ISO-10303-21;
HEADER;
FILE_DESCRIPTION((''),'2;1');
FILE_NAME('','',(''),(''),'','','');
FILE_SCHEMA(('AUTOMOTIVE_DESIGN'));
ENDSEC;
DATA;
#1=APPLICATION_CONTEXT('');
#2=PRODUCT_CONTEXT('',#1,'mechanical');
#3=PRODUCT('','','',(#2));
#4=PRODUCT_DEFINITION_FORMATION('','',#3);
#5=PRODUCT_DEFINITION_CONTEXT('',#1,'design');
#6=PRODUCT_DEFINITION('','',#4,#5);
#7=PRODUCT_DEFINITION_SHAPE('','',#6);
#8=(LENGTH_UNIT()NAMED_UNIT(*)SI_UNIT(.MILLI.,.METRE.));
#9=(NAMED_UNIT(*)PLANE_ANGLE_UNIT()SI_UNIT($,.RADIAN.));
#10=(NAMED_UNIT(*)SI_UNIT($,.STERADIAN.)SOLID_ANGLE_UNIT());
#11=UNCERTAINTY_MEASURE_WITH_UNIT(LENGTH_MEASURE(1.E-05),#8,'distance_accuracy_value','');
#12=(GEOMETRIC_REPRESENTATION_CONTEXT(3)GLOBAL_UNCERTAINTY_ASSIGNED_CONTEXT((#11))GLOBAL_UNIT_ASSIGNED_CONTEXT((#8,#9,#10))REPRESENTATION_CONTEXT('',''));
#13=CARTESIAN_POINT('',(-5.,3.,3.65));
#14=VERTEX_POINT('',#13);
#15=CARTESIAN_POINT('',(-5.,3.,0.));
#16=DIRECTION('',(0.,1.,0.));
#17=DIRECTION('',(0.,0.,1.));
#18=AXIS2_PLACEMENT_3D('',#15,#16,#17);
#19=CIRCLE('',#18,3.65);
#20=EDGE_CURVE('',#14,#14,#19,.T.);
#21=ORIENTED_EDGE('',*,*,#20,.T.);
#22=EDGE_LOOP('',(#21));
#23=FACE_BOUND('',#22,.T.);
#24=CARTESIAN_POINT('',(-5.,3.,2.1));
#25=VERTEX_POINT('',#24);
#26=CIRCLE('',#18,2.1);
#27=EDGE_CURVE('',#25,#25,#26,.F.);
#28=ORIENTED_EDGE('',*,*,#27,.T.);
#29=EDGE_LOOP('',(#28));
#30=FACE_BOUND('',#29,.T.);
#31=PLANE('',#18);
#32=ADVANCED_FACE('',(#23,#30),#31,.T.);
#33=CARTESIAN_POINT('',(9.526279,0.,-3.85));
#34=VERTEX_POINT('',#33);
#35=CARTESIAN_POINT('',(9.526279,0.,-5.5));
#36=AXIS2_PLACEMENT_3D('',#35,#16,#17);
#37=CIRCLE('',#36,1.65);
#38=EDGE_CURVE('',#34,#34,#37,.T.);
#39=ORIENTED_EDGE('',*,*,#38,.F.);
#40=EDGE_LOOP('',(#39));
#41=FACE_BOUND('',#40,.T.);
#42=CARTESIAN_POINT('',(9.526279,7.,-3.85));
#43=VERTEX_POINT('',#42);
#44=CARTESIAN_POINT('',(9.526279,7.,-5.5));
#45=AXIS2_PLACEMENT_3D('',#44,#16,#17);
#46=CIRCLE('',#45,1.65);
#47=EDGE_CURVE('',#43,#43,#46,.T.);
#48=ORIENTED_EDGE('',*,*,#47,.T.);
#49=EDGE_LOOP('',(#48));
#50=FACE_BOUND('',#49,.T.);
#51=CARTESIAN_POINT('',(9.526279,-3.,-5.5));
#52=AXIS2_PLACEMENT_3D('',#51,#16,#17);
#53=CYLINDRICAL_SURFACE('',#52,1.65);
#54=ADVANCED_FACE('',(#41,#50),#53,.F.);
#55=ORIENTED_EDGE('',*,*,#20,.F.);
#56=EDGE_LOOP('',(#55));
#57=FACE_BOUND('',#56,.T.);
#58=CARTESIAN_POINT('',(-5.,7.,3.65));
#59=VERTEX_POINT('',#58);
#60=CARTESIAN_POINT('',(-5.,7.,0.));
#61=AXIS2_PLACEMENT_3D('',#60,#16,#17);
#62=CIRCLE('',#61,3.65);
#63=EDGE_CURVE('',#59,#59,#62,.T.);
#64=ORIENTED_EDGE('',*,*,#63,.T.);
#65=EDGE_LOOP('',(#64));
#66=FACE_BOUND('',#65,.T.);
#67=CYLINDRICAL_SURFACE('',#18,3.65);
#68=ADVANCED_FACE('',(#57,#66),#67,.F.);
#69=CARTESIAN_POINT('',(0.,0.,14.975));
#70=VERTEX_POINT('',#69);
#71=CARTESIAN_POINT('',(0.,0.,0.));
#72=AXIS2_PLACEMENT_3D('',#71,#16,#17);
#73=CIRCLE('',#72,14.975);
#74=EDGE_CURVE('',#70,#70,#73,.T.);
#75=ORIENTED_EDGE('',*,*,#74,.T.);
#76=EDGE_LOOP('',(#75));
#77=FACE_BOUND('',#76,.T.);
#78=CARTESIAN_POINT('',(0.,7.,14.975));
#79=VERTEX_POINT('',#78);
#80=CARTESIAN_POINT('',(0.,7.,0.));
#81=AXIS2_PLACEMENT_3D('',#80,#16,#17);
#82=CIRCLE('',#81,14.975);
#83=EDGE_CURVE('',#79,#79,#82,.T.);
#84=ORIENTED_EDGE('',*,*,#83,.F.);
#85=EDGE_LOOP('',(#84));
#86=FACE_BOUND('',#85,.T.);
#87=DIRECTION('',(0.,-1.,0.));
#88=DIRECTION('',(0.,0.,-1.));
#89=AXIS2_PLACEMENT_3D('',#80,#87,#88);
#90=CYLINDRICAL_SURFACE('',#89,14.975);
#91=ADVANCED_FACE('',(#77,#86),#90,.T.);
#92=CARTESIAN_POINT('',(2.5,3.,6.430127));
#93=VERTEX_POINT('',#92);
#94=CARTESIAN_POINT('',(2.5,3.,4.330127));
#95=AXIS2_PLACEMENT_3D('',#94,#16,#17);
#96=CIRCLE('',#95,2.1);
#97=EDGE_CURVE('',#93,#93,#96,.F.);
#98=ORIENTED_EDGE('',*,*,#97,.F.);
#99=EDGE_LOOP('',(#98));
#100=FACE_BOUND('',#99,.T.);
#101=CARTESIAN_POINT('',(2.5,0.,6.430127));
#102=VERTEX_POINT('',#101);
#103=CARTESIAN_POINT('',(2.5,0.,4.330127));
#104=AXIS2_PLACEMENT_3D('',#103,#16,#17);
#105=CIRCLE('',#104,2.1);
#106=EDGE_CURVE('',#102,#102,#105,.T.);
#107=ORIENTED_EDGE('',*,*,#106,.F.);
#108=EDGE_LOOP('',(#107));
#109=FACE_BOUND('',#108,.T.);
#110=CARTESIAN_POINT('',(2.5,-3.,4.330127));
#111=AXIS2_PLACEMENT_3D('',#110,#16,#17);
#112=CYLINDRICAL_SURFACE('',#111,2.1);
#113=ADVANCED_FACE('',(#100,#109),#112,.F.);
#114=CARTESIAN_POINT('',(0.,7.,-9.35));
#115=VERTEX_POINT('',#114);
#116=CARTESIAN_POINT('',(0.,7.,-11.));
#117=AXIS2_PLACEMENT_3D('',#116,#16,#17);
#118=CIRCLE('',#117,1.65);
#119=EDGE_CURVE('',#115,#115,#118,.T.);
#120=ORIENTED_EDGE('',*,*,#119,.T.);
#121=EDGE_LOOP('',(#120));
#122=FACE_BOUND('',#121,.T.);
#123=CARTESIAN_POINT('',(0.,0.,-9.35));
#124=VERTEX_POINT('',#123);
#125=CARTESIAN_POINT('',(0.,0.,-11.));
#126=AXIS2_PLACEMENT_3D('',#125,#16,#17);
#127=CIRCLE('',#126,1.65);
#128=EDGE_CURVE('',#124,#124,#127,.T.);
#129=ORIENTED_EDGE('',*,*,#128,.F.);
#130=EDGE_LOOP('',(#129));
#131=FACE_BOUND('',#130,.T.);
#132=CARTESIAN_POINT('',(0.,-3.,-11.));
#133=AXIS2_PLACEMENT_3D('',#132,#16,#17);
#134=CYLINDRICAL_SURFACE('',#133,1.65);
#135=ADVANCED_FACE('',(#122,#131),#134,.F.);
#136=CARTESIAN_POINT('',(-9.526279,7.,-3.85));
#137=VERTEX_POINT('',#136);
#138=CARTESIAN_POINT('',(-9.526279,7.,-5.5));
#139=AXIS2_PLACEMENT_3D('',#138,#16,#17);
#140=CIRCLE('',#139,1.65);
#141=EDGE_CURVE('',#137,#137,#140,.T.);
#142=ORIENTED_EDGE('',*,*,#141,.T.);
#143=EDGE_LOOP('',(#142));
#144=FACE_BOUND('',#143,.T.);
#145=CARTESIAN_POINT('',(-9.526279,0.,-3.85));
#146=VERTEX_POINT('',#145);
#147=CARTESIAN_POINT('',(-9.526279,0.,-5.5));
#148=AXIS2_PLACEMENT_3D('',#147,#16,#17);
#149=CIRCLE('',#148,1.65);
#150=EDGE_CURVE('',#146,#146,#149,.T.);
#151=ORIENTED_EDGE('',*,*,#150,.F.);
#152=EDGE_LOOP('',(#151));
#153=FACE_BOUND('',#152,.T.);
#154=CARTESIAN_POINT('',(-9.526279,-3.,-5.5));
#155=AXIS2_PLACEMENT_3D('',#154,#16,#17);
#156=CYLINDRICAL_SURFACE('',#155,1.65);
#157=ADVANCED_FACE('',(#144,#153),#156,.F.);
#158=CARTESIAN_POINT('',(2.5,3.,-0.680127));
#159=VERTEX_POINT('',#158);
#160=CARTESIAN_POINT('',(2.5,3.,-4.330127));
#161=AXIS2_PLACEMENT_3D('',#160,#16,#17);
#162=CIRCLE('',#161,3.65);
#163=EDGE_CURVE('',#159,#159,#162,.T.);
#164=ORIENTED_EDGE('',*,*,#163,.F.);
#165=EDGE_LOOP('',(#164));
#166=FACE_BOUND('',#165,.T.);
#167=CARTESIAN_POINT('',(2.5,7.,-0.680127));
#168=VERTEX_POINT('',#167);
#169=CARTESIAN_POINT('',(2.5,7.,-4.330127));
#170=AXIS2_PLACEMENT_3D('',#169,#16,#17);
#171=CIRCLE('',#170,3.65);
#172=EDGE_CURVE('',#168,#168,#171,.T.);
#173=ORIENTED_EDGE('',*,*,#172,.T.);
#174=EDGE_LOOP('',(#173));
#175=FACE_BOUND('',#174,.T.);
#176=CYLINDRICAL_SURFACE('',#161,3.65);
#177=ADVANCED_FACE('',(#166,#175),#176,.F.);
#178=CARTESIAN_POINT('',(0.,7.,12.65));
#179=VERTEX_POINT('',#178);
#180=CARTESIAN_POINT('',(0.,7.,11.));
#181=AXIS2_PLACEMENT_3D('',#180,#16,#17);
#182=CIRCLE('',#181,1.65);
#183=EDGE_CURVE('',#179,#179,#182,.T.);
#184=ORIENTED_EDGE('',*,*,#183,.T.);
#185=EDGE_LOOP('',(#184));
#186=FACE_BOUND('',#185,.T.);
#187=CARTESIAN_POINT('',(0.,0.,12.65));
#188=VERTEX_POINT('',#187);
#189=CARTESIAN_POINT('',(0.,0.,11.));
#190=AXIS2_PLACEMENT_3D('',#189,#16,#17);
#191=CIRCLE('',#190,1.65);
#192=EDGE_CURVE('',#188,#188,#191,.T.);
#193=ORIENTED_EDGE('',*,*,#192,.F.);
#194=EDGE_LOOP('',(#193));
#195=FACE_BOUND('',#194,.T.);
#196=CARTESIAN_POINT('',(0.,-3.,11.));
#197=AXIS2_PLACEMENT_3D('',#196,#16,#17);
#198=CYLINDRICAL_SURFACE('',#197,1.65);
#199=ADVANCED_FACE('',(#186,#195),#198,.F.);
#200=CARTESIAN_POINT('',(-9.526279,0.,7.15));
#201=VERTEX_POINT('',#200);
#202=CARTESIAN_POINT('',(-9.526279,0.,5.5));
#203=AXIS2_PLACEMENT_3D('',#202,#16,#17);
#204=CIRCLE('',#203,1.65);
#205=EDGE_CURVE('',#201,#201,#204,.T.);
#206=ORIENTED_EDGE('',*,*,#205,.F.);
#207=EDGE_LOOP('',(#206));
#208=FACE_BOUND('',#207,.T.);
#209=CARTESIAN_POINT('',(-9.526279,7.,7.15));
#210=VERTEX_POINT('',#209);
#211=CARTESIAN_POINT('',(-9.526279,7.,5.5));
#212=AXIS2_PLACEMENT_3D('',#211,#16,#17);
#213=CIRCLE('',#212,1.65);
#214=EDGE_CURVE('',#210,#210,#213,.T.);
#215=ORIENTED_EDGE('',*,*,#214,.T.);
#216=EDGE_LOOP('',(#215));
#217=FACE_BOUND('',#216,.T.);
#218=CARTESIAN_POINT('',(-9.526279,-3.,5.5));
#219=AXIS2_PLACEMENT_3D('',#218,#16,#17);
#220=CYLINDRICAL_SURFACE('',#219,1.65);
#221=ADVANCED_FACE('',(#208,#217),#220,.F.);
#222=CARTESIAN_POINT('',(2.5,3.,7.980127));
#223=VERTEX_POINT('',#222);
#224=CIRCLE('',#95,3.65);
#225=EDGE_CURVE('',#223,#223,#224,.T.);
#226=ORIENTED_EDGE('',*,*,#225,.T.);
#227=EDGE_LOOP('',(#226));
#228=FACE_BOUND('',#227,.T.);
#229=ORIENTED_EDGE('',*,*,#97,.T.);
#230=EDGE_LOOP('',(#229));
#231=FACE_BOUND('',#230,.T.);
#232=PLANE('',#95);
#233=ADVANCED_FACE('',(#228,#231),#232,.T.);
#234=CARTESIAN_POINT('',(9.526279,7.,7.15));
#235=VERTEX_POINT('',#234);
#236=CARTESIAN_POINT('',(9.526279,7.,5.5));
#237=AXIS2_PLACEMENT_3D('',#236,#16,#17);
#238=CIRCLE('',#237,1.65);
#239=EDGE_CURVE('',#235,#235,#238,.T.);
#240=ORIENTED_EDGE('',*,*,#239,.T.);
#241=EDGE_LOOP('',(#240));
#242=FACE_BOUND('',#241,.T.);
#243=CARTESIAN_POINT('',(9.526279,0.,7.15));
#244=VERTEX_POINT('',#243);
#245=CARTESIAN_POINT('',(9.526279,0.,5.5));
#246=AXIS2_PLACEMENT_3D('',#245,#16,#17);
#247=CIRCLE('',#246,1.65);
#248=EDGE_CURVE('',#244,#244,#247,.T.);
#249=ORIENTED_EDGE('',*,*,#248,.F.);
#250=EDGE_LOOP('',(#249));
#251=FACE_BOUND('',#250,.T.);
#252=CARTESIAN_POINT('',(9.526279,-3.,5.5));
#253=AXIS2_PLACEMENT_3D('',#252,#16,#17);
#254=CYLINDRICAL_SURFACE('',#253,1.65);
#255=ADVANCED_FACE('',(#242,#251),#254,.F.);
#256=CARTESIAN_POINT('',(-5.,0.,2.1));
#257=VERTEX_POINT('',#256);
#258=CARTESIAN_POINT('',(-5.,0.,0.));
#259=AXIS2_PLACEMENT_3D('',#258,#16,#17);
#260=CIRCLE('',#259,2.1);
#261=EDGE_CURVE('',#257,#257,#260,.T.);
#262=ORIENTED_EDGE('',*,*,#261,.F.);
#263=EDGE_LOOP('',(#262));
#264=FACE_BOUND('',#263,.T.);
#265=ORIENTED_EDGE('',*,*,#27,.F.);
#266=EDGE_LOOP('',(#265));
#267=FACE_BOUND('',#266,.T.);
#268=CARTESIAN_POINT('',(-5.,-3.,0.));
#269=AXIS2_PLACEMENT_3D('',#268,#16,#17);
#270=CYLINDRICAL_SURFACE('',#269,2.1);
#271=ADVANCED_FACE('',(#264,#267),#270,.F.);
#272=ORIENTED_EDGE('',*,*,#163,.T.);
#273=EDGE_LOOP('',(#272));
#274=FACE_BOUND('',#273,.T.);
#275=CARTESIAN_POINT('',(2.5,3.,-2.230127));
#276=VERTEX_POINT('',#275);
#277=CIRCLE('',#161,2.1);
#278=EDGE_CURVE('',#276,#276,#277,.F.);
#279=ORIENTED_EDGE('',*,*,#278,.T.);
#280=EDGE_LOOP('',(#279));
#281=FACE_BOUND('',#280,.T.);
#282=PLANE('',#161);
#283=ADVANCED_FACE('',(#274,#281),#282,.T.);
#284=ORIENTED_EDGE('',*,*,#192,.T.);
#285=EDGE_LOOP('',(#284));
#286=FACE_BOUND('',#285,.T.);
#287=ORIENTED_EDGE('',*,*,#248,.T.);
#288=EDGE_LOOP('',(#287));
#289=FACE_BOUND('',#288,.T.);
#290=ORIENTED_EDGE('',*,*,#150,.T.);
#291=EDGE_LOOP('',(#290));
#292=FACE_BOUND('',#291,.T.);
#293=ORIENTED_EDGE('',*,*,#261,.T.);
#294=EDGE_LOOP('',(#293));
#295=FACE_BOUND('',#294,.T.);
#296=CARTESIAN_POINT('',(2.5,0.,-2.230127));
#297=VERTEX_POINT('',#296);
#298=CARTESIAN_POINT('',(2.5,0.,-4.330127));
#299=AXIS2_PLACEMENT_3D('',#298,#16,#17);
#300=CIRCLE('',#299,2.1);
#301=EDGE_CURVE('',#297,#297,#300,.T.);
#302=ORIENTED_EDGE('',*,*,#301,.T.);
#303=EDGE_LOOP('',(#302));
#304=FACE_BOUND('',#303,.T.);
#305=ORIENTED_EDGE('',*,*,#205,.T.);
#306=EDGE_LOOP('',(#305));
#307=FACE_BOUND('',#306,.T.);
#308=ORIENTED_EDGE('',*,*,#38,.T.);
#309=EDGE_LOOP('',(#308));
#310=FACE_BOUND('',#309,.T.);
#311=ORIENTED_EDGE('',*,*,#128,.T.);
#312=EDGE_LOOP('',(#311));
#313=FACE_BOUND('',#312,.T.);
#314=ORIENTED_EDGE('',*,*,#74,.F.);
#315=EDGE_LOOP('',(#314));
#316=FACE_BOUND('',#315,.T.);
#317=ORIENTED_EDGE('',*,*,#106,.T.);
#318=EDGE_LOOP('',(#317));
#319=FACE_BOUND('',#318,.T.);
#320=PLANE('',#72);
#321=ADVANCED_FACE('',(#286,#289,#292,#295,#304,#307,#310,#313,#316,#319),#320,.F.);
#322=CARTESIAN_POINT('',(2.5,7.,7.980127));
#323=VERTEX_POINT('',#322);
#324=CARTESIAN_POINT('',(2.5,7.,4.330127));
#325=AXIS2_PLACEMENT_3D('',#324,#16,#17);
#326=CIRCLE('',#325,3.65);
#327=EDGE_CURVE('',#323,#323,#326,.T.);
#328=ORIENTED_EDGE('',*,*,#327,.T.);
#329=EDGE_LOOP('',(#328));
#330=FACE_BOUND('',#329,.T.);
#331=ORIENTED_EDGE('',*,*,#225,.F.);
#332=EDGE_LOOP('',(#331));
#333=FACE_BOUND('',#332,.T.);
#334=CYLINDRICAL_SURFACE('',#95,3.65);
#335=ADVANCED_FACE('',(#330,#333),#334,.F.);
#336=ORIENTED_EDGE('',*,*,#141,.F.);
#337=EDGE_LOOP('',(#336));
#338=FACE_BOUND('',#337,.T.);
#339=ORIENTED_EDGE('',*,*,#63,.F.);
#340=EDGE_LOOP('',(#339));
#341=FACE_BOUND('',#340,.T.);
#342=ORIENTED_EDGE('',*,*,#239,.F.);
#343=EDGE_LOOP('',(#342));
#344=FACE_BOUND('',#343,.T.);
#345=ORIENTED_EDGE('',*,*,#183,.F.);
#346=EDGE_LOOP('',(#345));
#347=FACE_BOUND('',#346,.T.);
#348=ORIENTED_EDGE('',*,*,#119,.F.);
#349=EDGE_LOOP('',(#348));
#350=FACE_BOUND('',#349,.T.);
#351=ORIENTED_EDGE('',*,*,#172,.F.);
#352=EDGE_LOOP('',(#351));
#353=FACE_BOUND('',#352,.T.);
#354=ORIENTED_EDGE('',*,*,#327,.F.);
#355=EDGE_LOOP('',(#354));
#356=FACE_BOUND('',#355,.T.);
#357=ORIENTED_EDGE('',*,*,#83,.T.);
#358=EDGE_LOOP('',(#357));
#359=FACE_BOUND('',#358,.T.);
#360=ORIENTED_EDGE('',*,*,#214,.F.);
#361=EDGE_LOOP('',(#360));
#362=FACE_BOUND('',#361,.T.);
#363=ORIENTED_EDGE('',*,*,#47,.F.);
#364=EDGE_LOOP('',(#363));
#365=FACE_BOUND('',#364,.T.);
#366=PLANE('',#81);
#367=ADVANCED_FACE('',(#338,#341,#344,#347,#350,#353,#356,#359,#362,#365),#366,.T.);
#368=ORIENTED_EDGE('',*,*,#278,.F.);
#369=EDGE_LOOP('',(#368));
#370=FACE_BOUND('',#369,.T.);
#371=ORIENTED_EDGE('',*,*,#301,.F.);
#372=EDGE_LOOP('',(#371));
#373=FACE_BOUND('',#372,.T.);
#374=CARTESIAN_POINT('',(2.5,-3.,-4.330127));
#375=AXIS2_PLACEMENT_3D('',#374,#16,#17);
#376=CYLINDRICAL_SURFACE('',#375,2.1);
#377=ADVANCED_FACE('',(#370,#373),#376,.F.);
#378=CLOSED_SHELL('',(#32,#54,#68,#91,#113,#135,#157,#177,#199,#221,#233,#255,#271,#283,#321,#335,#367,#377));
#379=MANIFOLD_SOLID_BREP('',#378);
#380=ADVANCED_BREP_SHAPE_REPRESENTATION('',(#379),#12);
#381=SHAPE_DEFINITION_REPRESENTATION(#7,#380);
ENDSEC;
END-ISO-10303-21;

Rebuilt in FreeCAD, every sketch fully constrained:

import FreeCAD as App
import Part
import Sketcher

V = App.Vector

doc = App.newDocument("Part")
params = doc.addObject("Spreadsheet::Sheet", "Params")
for row, (alias, value) in enumerate([
    ("sketch1_diameter", "29.95 mm"),
    ("pad1_length", "7 mm"),
    ("sketch2_diameter", "4.2 mm"),
    ("pocket1_length", "10 mm"),
    ("sketch3_diameter", "3.3 mm"),
    ("pocket2_length", "10 mm"),
    ("sketch4_diameter", "7.3 mm"),
    ("pocket3_length", "4 mm"),
], start=1):
    params.set(f"A{row}", alias)
    params.set(f"B{row}", "=" + value)
    params.setAlias(f"B{row}", alias)

body = doc.addObject("PartDesign::Body", "Body")

# Sketch on XZ plane
sketch1 = body.newObject("Sketcher::SketchObject", "Sketch")
sketch1.AttachmentSupport = (doc.getObject("XZ_Plane"), [""])
sketch1.MapMode = "FlatFace"
sketch1.addGeometry(Part.Circle(V(0, 0, 0), V(0, 0, 1), 15), False)
sketch1.addConstraint(Sketcher.Constraint("Coincident", 0, 3, -1, 1))
sketch1.addConstraint(Sketcher.Constraint("Diameter", 0, 29.95))
sketch1.setExpression("Constraints[1]", "Params.sketch1_diameter")
pad1 = body.newObject("PartDesign::Pad", "Pad")
pad1.Profile = sketch1
pad1.setExpression("Length", "Params.pad1_length")
pad1.Reversed = True

# Sketch on XZ plane
sketch2 = body.newObject("Sketcher::SketchObject", "Sketch001")
sketch2.AttachmentSupport = (doc.getObject("XZ_Plane"), [""])
sketch2.MapMode = "FlatFace"
sketch2.AttachmentOffset = App.Placement(V(0, 0, -7), App.Rotation())
sketch2.addGeometry(Part.Circle(V(-5, 0, 0), V(0, 0, 1), 2.1), False)
sketch2.addGeometry(Part.Circle(V(2.5, -4.3, 0), V(0, 0, 1), 2.1), False)
sketch2.addGeometry(Part.Circle(V(2.5, 4.3, 0), V(0, 0, 1), 2.1), False)
sketch2.addConstraint(Sketcher.Constraint("Equal", 0, 1))
sketch2.addConstraint(Sketcher.Constraint("Equal", 1, 2))
sketch2.addConstraint(Sketcher.Constraint("Symmetric", 1, 3, 2, 3, -1))
sketch2.addConstraint(Sketcher.Constraint("PointOnObject", 0, 3, -1))
sketch2.addConstraint(Sketcher.Constraint("Diameter", 0, 4.2))
sketch2.addConstraint(Sketcher.Constraint("DistanceX", 0, 3, -1, 1, 5.0))
sketch2.addConstraint(Sketcher.Constraint("DistanceX", -1, 1, 1, 3, 2.5))
sketch2.addConstraint(Sketcher.Constraint("DistanceY", 1, 3, -1, 1, 4.330127))
sketch2.setExpression("Constraints[4]", "Params.sketch2_diameter")
pocket1 = body.newObject("PartDesign::Pocket", "Pocket")
pocket1.Profile = sketch2
pocket1.setExpression("Length", "Params.pocket1_length")
pocket1.Reversed = True

# Sketch on XZ plane
sketch3 = body.newObject("Sketcher::SketchObject", "Sketch002")
sketch3.AttachmentSupport = (doc.getObject("XZ_Plane"), [""])
sketch3.MapMode = "FlatFace"
sketch3.AttachmentOffset = App.Placement(V(0, 0, -7), App.Rotation())
sketch3.addGeometry(Part.Circle(V(0, -11, 0), V(0, 0, 1), 1.6), False)
sketch3.addGeometry(Part.Circle(V(9.5, -5.5, 0), V(0, 0, 1), 1.6), False)
sketch3.addGeometry(Part.Circle(V(9.5, 5.5, 0), V(0, 0, 1), 1.6), False)
sketch3.addGeometry(Part.Circle(V(0, 11, 0), V(0, 0, 1), 1.6), False)
sketch3.addGeometry(Part.Circle(V(-9.5, 5.5, 0), V(0, 0, 1), 1.6), False)
sketch3.addGeometry(Part.Circle(V(-9.5, -5.5, 0), V(0, 0, 1), 1.6), False)
sketch3.addConstraint(Sketcher.Constraint("Equal", 0, 1))
sketch3.addConstraint(Sketcher.Constraint("Equal", 1, 2))
sketch3.addConstraint(Sketcher.Constraint("Equal", 2, 3))
sketch3.addConstraint(Sketcher.Constraint("Equal", 3, 4))
sketch3.addConstraint(Sketcher.Constraint("Equal", 4, 5))
sketch3.addConstraint(Sketcher.Constraint("Symmetric", 0, 3, 3, 3, -1, 1))
sketch3.addConstraint(Sketcher.Constraint("Symmetric", 1, 3, 4, 3, -1, 1))
sketch3.addConstraint(Sketcher.Constraint("Symmetric", 2, 3, 5, 3, -1, 1))
sketch3.addConstraint(Sketcher.Constraint("Symmetric", 2, 3, 4, 3, -2))
sketch3.addConstraint(Sketcher.Constraint("PointOnObject", 0, 3, -2))
sketch3.addConstraint(Sketcher.Constraint("Diameter", 0, 3.3))
sketch3.addConstraint(Sketcher.Constraint("DistanceY", 0, 3, -1, 1, 11.0))
sketch3.addConstraint(Sketcher.Constraint("DistanceY", 1, 3, 2, 3, 11.0))
sketch3.addConstraint(Sketcher.Constraint("DistanceX", -1, 1, 1, 3, 9.526279))
sketch3.setExpression("Constraints[10]", "Params.sketch3_diameter")
pocket2 = body.newObject("PartDesign::Pocket", "Pocket001")
pocket2.Profile = sketch3
pocket2.setExpression("Length", "Params.pocket2_length")
pocket2.Reversed = True

# Sketch on XZ plane
sketch4 = body.newObject("Sketcher::SketchObject", "Sketch003")
sketch4.AttachmentSupport = (doc.getObject("XZ_Plane"), [""])
sketch4.MapMode = "FlatFace"
sketch4.AttachmentOffset = App.Placement(V(0, 0, -7), App.Rotation())
sketch4.addGeometry(Part.Circle(V(-5, 0, 0), V(0, 0, 1), 3.6), False)
sketch4.addGeometry(Part.Circle(V(2.5, -4.3, 0), V(0, 0, 1), 3.6), False)
sketch4.addGeometry(Part.Circle(V(2.5, 4.3, 0), V(0, 0, 1), 3.6), False)
sketch4.addConstraint(Sketcher.Constraint("Equal", 0, 1))
sketch4.addConstraint(Sketcher.Constraint("Equal", 1, 2))
sketch4.addConstraint(Sketcher.Constraint("Symmetric", 1, 3, 2, 3, -1))
sketch4.addConstraint(Sketcher.Constraint("PointOnObject", 0, 3, -1))
sketch4.addConstraint(Sketcher.Constraint("Diameter", 0, 7.3))
sketch4.addConstraint(Sketcher.Constraint("DistanceX", 0, 3, -1, 1, 5.0))
sketch4.addConstraint(Sketcher.Constraint("DistanceX", -1, 1, 1, 3, 2.5))
sketch4.addConstraint(Sketcher.Constraint("DistanceY", 1, 3, -1, 1, 4.330127))
sketch4.setExpression("Constraints[4]", "Params.sketch4_diameter")
pocket3 = body.newObject("PartDesign::Pocket", "Pocket002")
pocket3.Profile = sketch4
pocket3.setExpression("Length", "Params.pocket3_length")
pocket3.Reversed = True

doc.recompute()
